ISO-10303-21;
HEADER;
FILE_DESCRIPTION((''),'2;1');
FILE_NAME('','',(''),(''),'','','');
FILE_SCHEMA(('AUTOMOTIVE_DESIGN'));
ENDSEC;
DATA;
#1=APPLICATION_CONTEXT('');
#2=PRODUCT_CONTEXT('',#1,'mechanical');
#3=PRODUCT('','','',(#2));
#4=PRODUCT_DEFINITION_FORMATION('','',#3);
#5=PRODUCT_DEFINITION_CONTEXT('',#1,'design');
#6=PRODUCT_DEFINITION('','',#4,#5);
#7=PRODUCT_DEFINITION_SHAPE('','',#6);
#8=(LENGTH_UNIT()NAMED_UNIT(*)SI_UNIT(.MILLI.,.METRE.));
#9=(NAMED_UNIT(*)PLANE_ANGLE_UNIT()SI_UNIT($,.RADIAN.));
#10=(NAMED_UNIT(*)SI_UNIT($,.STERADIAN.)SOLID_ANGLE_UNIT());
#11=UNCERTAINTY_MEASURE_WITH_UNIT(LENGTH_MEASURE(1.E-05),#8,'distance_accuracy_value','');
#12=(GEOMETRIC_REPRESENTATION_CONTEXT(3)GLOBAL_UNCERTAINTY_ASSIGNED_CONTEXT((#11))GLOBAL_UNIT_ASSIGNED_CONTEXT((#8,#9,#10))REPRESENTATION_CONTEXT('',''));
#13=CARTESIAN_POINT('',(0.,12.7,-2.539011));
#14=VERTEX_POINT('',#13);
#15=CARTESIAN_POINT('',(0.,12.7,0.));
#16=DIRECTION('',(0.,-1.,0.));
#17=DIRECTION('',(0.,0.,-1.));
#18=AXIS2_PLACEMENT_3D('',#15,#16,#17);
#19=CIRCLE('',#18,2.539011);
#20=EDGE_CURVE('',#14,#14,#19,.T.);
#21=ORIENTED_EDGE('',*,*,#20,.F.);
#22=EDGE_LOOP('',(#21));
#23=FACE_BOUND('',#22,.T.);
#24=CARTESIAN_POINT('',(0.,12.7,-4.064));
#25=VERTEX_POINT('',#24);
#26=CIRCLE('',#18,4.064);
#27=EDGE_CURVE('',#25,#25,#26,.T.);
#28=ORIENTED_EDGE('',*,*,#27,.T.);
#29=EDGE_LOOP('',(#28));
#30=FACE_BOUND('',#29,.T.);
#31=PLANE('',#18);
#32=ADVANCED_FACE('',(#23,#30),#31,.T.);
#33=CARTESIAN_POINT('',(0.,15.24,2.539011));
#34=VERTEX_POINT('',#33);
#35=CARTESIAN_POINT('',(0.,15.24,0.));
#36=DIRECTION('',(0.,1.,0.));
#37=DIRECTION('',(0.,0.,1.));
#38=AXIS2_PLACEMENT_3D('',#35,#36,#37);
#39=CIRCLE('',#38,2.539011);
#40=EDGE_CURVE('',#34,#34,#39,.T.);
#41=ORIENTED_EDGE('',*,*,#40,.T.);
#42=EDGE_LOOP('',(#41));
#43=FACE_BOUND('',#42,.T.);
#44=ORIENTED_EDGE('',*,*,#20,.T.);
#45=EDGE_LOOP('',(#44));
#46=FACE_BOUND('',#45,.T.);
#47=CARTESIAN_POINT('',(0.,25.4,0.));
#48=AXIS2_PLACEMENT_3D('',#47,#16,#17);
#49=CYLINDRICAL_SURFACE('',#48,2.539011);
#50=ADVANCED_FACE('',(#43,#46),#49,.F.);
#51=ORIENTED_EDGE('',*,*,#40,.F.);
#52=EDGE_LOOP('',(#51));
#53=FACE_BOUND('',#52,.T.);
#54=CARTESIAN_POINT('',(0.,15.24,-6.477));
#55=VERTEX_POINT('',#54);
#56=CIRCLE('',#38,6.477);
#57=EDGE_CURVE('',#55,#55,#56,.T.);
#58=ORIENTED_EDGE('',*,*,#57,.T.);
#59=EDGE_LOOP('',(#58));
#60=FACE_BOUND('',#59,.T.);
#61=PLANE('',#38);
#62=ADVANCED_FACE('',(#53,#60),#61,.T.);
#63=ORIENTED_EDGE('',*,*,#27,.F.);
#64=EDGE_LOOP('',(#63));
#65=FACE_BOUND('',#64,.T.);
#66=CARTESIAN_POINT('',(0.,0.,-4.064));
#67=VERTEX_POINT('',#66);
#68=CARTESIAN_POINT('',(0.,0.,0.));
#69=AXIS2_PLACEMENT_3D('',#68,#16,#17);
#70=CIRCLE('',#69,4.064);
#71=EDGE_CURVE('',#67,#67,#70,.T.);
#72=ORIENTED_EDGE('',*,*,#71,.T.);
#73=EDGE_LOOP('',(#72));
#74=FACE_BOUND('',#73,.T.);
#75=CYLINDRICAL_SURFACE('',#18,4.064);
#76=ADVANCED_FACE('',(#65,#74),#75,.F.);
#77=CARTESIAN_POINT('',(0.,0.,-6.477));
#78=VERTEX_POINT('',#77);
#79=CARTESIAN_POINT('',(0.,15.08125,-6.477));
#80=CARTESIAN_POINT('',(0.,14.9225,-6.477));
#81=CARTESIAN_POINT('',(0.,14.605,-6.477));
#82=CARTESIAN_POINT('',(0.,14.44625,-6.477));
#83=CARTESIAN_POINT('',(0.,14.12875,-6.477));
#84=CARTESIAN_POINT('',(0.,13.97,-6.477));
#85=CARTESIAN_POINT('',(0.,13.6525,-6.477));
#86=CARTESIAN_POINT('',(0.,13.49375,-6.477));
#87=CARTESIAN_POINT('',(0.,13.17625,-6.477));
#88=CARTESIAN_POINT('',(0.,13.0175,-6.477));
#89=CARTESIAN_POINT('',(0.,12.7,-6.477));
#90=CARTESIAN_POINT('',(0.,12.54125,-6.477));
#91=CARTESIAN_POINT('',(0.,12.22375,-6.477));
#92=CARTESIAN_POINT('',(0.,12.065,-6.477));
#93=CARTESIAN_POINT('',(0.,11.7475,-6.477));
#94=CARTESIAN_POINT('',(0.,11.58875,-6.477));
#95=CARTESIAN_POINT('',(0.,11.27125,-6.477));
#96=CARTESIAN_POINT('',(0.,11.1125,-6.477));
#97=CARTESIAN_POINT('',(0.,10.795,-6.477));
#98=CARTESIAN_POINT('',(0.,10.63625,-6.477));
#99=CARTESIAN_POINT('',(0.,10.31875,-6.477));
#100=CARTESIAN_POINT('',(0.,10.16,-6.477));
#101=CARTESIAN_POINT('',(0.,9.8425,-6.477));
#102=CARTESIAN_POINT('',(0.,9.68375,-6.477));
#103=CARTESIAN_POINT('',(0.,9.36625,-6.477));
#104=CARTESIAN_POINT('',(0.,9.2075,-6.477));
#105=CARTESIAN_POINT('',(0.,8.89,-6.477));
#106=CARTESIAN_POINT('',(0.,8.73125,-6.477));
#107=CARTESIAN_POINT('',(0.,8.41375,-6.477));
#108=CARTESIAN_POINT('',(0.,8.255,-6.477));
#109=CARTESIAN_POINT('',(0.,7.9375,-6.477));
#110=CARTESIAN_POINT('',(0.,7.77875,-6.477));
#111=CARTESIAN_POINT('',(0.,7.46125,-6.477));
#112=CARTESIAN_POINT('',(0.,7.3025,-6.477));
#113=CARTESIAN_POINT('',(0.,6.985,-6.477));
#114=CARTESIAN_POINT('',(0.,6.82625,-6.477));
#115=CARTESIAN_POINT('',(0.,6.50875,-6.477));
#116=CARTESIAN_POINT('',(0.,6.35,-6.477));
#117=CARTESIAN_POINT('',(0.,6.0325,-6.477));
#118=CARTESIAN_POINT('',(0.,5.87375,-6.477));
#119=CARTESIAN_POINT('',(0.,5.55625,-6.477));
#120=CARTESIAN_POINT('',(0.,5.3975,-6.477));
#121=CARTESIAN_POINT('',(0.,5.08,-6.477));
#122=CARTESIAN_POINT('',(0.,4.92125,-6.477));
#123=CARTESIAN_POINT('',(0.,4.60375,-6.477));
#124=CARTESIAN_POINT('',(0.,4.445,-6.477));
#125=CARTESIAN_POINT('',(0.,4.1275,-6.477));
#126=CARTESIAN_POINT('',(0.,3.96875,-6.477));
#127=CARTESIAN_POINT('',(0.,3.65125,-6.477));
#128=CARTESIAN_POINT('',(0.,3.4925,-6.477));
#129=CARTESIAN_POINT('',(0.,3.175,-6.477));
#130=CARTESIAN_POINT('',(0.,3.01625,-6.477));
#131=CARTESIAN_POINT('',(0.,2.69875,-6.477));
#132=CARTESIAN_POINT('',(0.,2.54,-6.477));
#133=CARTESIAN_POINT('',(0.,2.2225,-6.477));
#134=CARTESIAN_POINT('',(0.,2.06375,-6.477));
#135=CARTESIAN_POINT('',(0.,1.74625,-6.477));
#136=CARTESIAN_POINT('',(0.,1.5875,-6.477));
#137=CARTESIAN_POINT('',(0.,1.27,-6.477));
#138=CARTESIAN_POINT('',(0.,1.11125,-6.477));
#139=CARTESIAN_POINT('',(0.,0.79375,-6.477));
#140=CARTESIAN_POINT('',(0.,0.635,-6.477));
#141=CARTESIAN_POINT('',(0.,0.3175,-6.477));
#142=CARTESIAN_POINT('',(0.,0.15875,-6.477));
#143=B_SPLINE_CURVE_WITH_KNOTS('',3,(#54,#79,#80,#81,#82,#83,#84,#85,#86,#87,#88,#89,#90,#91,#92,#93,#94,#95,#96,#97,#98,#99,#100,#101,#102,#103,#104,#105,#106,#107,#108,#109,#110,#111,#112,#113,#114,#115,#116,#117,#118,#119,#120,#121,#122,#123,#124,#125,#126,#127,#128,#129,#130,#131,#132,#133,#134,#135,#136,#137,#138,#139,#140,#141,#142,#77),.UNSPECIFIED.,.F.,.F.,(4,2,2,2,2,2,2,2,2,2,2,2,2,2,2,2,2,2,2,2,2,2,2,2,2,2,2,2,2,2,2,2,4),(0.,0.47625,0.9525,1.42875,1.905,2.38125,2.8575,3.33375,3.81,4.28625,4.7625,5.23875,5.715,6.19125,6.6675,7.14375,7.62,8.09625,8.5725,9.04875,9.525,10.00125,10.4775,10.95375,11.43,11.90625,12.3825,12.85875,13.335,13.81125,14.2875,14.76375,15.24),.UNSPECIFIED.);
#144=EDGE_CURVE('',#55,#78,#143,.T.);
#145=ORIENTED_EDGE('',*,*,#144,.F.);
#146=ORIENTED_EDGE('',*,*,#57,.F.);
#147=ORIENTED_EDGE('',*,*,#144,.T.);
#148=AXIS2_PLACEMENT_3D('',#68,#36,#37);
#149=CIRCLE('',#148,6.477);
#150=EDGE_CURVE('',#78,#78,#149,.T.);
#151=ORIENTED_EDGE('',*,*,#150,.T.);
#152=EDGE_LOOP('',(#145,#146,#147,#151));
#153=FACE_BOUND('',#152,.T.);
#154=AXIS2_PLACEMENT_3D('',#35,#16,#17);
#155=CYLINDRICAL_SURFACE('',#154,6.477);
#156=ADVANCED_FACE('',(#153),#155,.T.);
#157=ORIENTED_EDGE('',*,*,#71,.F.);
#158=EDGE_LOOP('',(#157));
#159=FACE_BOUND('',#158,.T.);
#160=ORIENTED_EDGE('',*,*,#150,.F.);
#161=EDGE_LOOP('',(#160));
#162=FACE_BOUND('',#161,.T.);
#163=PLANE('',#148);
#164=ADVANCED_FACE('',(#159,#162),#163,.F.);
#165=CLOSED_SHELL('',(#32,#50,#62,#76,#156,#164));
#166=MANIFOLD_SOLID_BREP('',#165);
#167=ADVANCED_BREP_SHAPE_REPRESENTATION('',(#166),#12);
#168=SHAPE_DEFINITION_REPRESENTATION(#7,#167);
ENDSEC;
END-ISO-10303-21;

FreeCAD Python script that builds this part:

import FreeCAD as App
import Part
import Sketcher
Q = App.Units.Quantity

doc = App.newDocument("Part")
body = doc.addObject("PartDesign::Body", "Body")

sketch1 = body.newObject("Sketcher::SketchObject", "Sketch")
sketch1.AttachmentSupport = (doc.getObject("XZ_Plane"), [""])
sketch1.MapMode = "FlatFace"
sketch1.addGeometry(Part.Circle(App.Vector(0, 0, 0), App.Vector(0, 0, 1), 6), False)
sketch1.addConstraint([
    Sketcher.Constraint("Coincident", 0, 3, -1, 1),
    Sketcher.Constraint("Diameter", 0, Q("0.51 in")),
])
pad1 = body.newObject("PartDesign::Pad", "Pad")
pad1.Profile = sketch1
pad1.Length = Q("0.6 in")
pad1.Reversed = True

sketch2 = body.newObject("Sketcher::SketchObject", "Sketch001")
sketch2.AttachmentSupport = (doc.getObject("XZ_Plane"), [""])
sketch2.MapMode = "FlatFace"
sketch2.addGeometry(Part.Circle(App.Vector(0, 0, 0), App.Vector(0, 0, 1), 4.1), False)
sketch2.addConstraint([
    Sketcher.Constraint("Coincident", 0, 3, -1, 1),
    Sketcher.Constraint("Diameter", 0, Q("0.32 in")),
])
pocket1 = body.newObject("PartDesign::Pocket", "Pocket")
pocket1.Profile = sketch2
pocket1.Length = Q("0.5 in")

sketch3 = body.newObject("Sketcher::SketchObject", "Sketch002")
sketch3.AttachmentSupport = (doc.getObject("XZ_Plane"), [""])
sketch3.MapMode = "FlatFace"
sketch3.AttachmentOffset = App.Placement(App.Vector(0, 0, -0.5 * 25.4), App.Rotation())
sketch3.addGeometry(Part.Circle(App.Vector(0, 0, 0), App.Vector(0, 0, 1), 2.5), False)
sketch3.addConstraint([
    Sketcher.Constraint("Coincident", 0, 3, -1, 1),
    Sketcher.Constraint("Diameter", 0, 5.078022),
])
pocket2 = body.newObject("PartDesign::Pocket", "Pocket001")
pocket2.Profile = sketch3
pocket2.Length = Q("0.5 in")

doc.recompute()
